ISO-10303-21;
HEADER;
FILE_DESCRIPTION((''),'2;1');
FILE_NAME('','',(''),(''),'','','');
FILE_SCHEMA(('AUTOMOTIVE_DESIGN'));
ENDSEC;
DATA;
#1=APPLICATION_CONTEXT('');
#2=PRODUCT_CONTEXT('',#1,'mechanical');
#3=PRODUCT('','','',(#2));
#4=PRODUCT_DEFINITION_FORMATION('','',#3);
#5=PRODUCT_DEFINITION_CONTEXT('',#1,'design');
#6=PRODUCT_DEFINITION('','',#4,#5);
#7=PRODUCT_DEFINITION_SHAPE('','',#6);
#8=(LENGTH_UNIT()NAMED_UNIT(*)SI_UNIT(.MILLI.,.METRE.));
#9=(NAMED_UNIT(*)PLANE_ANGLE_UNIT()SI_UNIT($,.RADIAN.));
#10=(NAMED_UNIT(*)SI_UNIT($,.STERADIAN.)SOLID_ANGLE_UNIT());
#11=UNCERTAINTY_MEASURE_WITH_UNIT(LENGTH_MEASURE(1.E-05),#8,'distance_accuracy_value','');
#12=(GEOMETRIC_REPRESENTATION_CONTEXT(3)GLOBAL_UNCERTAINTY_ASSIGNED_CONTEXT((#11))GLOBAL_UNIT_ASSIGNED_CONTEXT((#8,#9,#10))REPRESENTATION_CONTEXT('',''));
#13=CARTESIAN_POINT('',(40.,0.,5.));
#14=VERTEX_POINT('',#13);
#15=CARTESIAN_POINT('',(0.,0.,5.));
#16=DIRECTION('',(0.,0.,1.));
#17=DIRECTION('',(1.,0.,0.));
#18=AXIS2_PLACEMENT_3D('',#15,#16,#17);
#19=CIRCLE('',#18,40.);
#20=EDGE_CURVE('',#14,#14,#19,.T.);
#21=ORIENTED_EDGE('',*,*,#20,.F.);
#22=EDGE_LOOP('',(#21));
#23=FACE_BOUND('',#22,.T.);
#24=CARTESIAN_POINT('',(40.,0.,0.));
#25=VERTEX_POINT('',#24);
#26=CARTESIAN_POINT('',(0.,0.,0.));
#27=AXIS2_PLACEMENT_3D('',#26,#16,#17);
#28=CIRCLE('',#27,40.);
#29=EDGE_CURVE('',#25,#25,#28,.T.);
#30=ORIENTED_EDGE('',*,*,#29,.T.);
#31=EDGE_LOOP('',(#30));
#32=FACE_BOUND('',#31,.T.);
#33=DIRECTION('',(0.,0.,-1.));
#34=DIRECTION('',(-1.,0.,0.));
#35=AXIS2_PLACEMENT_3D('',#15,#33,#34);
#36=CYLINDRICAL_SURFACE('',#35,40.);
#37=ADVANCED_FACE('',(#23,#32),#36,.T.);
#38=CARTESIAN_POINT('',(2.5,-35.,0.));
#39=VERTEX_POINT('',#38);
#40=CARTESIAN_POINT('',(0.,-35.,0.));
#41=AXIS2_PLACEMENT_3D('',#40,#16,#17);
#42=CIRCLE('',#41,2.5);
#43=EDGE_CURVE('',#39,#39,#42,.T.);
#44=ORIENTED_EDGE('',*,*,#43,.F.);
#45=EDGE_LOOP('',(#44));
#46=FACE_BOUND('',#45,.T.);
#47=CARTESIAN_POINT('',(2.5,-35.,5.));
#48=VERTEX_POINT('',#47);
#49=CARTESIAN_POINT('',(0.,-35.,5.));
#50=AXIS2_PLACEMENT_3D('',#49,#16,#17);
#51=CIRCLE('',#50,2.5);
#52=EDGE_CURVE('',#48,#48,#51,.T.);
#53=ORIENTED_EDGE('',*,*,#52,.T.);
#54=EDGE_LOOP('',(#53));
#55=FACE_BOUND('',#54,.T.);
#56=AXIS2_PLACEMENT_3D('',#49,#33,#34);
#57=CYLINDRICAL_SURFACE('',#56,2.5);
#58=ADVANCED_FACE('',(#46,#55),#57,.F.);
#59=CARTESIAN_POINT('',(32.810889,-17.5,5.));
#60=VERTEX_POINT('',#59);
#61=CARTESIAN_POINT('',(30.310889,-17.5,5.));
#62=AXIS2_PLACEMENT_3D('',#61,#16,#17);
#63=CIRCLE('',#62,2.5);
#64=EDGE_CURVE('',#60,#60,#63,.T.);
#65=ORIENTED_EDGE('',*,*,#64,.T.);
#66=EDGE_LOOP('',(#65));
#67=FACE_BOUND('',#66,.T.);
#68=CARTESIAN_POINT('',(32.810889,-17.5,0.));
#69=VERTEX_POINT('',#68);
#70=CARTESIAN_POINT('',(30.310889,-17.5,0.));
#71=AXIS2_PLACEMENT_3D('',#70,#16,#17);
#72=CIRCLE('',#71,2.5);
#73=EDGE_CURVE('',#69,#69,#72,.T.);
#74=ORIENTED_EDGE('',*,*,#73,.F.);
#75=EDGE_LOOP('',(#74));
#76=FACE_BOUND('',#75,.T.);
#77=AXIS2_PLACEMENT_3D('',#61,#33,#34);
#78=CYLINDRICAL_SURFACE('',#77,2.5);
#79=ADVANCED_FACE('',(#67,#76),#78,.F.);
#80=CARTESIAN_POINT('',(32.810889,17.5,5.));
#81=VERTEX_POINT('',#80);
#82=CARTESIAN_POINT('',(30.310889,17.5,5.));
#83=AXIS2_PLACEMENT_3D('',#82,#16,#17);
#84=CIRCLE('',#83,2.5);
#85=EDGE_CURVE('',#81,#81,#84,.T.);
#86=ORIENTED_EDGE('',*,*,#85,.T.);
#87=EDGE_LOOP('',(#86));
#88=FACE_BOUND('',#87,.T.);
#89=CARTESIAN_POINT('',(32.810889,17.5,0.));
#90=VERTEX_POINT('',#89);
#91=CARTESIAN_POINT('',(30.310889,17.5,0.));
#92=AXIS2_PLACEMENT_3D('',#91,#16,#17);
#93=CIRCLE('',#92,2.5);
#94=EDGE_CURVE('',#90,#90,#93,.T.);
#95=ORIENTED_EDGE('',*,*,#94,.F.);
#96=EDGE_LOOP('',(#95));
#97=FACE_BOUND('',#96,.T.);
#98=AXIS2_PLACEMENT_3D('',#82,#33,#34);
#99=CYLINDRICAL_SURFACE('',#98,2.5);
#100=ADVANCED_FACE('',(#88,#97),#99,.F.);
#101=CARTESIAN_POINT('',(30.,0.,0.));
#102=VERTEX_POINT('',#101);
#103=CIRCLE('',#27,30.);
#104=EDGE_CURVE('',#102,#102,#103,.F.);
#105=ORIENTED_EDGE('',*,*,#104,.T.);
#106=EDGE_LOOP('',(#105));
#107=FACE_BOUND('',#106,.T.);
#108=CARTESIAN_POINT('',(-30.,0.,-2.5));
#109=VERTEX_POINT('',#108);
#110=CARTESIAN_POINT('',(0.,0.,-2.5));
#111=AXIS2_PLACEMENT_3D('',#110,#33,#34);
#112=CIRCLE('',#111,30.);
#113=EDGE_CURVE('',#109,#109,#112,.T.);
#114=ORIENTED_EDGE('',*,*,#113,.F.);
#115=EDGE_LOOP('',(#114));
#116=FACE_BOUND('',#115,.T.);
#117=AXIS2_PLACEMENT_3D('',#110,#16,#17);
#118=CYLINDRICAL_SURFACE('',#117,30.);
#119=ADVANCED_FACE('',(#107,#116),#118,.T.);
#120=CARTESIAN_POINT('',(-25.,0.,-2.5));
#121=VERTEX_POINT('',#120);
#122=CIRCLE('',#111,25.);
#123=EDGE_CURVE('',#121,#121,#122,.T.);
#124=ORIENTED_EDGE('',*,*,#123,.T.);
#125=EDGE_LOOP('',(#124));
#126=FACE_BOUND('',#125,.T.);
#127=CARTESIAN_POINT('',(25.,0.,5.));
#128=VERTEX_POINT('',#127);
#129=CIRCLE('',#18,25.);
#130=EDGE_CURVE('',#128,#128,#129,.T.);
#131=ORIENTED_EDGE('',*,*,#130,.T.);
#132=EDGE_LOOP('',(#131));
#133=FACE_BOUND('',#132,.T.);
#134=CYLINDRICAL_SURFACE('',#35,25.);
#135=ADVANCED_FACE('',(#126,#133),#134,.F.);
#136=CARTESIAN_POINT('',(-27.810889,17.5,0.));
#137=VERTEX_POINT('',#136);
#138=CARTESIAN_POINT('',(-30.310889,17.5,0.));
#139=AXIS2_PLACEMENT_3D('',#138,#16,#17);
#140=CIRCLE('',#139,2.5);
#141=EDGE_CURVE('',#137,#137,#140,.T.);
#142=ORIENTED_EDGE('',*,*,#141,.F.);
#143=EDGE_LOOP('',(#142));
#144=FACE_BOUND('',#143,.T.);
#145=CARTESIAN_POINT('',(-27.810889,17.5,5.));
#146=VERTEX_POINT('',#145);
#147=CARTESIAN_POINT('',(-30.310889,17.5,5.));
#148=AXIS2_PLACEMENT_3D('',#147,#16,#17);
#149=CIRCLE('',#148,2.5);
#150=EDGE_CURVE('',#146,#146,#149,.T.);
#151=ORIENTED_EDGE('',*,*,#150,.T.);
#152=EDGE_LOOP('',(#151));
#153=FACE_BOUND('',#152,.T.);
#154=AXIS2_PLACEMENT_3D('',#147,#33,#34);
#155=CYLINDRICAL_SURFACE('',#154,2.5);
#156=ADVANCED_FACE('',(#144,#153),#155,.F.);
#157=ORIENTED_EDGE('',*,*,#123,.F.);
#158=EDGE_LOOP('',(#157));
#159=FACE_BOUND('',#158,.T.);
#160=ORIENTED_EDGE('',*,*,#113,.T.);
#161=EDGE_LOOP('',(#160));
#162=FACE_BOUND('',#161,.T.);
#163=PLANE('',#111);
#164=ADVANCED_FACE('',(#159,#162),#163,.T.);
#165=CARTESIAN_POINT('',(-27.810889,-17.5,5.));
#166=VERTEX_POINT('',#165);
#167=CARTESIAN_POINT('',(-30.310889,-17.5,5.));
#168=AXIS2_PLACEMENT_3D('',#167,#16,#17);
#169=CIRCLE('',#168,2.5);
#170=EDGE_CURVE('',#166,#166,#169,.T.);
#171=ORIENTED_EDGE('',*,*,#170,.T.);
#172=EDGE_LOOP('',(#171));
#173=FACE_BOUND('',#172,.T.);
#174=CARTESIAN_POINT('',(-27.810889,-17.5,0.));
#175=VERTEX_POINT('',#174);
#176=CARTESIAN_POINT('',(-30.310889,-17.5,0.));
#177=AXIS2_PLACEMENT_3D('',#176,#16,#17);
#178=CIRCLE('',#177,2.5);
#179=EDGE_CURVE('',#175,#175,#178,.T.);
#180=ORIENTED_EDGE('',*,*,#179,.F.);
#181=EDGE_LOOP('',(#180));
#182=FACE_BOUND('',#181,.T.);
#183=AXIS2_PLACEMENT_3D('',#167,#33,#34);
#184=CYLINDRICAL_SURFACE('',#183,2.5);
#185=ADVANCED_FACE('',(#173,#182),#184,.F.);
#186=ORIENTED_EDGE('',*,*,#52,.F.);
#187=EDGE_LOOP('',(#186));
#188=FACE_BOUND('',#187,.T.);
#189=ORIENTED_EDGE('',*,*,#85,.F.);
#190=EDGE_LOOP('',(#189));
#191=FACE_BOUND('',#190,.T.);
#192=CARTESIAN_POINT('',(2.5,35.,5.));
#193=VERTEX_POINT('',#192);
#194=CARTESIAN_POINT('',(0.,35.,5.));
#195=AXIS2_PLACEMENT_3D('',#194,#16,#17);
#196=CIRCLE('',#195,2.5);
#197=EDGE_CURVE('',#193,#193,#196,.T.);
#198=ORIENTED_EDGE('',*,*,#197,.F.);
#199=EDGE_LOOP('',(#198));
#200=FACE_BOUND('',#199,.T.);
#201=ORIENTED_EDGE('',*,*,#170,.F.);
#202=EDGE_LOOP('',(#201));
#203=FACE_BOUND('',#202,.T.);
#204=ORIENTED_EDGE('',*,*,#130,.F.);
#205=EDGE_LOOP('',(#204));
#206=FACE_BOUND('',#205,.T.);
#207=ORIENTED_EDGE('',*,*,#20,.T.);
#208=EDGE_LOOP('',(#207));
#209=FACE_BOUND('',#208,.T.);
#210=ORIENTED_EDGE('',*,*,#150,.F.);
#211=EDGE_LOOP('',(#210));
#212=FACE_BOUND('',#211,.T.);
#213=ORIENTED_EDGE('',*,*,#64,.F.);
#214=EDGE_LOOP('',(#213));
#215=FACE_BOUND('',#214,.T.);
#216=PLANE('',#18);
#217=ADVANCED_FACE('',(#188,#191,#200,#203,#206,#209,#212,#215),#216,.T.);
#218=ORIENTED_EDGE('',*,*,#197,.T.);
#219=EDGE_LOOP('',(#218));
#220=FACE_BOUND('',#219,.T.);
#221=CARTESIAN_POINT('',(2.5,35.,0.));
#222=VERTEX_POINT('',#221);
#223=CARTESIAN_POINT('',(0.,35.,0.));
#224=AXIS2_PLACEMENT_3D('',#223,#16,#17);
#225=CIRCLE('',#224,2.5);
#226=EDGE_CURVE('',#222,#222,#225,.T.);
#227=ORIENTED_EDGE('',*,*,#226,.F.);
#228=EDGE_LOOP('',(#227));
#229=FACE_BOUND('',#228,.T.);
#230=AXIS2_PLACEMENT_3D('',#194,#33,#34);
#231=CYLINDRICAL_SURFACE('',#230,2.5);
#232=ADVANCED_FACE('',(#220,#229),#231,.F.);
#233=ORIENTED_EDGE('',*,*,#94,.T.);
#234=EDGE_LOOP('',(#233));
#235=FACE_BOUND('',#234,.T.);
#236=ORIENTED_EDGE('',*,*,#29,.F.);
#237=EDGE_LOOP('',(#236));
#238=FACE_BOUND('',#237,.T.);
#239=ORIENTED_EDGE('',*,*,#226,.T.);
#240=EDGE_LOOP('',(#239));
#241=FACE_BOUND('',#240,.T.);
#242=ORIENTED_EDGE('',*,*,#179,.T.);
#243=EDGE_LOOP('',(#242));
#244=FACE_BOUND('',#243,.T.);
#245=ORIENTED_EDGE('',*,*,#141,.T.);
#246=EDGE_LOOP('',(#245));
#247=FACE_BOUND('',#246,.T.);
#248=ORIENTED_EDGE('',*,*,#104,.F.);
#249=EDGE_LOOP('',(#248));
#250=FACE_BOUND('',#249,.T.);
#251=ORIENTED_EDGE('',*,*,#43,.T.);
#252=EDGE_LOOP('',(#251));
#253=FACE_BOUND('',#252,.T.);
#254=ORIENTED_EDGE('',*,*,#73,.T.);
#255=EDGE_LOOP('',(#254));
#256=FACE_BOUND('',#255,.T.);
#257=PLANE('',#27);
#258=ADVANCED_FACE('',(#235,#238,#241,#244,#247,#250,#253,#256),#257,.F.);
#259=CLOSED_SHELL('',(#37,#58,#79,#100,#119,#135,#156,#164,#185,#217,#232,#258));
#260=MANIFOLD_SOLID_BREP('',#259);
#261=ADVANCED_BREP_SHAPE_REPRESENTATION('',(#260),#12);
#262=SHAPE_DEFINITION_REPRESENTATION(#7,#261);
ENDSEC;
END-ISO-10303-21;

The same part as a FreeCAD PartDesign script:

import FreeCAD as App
import Part
import Sketcher
from FreeCAD import Vector
Q = App.Units.Quantity

doc = App.newDocument("Part")
params = doc.addObject("Spreadsheet::Sheet", "Params")
for row, (alias, value) in enumerate([
    ("sketch1_diameter", "80 mm"),
    ("sketch1_diameter2", "50 mm"),
    ("pad1_length", "5 mm"),
    ("sketch2_diameter", "60 mm"),
    ("sketch2_diameter2", "50 mm"),
    ("pad2_length", "2.5 mm"),
    ("sketch3_diameter", "5 mm"),
], start=1):
    params.set(f"A{row}", alias)
    params.set(f"B{row}", "=" + value)
    params.setAlias(f"B{row}", alias)

body = doc.addObject("PartDesign::Body", "Body")

sketch1 = body.newObject("Sketcher::SketchObject", "Sketch")
sketch1.AttachmentSupport = (doc.getObject("XY_Plane"), [""])
sketch1.MapMode = "FlatFace"
sketch1.addGeometry([
    Part.Circle(Vector(0, 0, 0), Vector(0, 0, 1), 40),
    Part.Circle(Vector(0, 0, 0), Vector(0, 0, 1), 25),
], False)
sketch1.addConstraint([
    Sketcher.Constraint("Coincident", 0, 3, -1, 1),
    Sketcher.Constraint("Coincident", 1, 3, -1, 1),
    Sketcher.Constraint("Diameter", 0, Q("80 mm")),
    Sketcher.Constraint("Diameter", 1, Q("50 mm")),
])
sketch1.setExpression("Constraints[2]", "Params.sketch1_diameter")
sketch1.setExpression("Constraints[3]", "Params.sketch1_diameter2")
pad1 = body.newObject("PartDesign::Pad", "Pad")
pad1.Profile = sketch1
pad1.setExpression("Length", "Params.pad1_length")

sketch2 = body.newObject("Sketcher::SketchObject", "Sketch001")
sketch2.AttachmentSupport = (doc.getObject("XY_Plane"), [""])
sketch2.MapMode = "FlatFace"
sketch2.AttachmentOffset = App.Placement(Vector(0, 0, -2.5), App.Rotation())
sketch2.addGeometry([
    Part.Circle(Vector(0, 0, 0), Vector(0, 0, 1), 30),
    Part.Circle(Vector(0, 0, 0), Vector(0, 0, 1), 25),
], False)
sketch2.addConstraint([
    Sketcher.Constraint("Coincident", 0, 3, -1, 1),
    Sketcher.Constraint("Coincident", 1, 3, -1, 1),
    Sketcher.Constraint("Diameter", 0, Q("60 mm")),
    Sketcher.Constraint("Diameter", 1, Q("50 mm")),
])
sketch2.setExpression("Constraints[2]", "Params.sketch2_diameter")
sketch2.setExpression("Constraints[3]", "Params.sketch2_diameter2")
pad2 = body.newObject("PartDesign::Pad", "Pad001")
pad2.Profile = sketch2
pad2.setExpression("Length", "Params.pad2_length")

sketch3 = body.newObject("Sketcher::SketchObject", "Sketch002")
sketch3.AttachmentSupport = (doc.getObject("XY_Plane"), [""])
sketch3.MapMode = "FlatFace"
sketch3.addGeometry([
    Part.Circle(Vector(0, 35, 0), Vector(0, 0, 1), 2.5),
    Part.Circle(Vector(30.3, 17.5, 0), Vector(0, 0, 1), 2.5),
    Part.Circle(Vector(30.3, -17.5, 0), Vector(0, 0, 1), 2.5),
    Part.Circle(Vector(0, -35, 0), Vector(0, 0, 1), 2.5),
    Part.Circle(Vector(-30.3, -17.5, 0), Vector(0, 0, 1), 2.5),
    Part.Circle(Vector(-30.3, 17.5, 0), Vector(0, 0, 1), 2.5),
], False)
sketch3.addConstraint([
    Sketcher.Constraint("Equal", 0, 1),
    Sketcher.Constraint("Equal", 1, 2),
    Sketcher.Constraint("Equal", 2, 3),
    Sketcher.Constraint("Equal", 3, 4),
    Sketcher.Constraint("Equal", 4, 5),
    Sketcher.Constraint("Symmetric", 0, 3, 3, 3, -1, 1),
    Sketcher.Constraint("Symmetric", 1, 3, 4, 3, -1, 1),
    Sketcher.Constraint("Symmetric", 2, 3, 5, 3, -1, 1),
    Sketcher.Constraint("Symmetric", 2, 3, 4, 3, -2),
    Sketcher.Constraint("PointOnObject", 0, 3, -2),
    Sketcher.Constraint("Diameter", 0, Q("5 mm")),
    Sketcher.Constraint("DistanceY", -1, 1, 0, 3, Q("35 mm")),
    Sketcher.Constraint("DistanceY", 2, 3, 1, 3, Q("35 mm")),
    Sketcher.Constraint("DistanceX", -1, 1, 1, 3, Q("30.310889 mm")),
])
sketch3.setExpression("Constraints[10]", "Params.sketch3_diameter")
pocket1 = body.newObject("PartDesign::Pocket", "Pocket")
pocket1.Profile = sketch3
pocket1.Type = "ThroughAll"
pocket1.Reversed = True

doc.recompute()
